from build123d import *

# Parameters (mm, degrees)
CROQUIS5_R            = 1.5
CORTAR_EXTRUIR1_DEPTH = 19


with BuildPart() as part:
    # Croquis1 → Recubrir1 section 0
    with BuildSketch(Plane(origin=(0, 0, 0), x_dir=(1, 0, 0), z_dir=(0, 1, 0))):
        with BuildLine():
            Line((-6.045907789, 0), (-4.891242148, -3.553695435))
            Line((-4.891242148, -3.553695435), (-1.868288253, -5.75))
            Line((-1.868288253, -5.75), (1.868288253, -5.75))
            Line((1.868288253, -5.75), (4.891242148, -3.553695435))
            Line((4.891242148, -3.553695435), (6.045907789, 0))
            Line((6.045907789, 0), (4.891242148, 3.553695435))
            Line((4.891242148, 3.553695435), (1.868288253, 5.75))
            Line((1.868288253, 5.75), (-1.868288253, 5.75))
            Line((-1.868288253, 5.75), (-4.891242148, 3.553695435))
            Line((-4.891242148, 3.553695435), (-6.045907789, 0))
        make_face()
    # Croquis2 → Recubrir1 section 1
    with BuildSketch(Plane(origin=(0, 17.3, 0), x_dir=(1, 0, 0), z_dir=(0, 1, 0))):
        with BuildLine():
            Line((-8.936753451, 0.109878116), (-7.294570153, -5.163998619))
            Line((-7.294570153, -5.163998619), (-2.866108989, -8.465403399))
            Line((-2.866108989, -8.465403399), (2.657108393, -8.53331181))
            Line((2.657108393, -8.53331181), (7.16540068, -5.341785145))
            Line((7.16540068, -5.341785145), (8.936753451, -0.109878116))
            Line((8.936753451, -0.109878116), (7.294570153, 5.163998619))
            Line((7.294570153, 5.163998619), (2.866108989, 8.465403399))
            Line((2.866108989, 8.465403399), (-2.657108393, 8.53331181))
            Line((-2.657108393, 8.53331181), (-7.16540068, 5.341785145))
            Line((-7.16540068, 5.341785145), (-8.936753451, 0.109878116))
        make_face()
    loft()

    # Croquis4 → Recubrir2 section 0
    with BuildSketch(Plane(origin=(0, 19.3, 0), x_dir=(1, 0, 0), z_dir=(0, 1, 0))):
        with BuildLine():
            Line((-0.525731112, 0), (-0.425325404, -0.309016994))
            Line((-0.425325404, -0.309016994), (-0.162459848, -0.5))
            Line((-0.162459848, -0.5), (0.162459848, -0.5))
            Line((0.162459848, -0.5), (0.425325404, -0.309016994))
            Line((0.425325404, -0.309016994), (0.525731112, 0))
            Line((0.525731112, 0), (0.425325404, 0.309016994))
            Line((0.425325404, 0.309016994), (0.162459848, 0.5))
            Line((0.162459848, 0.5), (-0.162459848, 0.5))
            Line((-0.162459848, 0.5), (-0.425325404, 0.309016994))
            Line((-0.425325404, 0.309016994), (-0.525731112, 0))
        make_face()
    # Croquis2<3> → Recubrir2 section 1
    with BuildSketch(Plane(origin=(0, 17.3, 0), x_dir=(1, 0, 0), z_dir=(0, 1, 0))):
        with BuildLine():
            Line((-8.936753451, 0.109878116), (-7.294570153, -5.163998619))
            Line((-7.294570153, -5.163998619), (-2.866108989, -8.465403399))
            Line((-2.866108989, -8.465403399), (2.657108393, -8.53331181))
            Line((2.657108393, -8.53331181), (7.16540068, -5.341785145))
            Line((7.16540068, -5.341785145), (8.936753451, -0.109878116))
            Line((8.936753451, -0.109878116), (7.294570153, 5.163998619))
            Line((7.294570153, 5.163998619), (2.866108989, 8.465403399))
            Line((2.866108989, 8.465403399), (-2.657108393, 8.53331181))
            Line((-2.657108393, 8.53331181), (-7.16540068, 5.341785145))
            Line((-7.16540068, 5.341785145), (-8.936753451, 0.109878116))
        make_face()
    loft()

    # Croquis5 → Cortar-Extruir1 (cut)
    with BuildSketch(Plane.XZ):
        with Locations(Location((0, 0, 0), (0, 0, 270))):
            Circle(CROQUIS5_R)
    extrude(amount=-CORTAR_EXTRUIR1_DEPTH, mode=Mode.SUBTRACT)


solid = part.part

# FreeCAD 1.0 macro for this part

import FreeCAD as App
import Part
import Sketcher
from FreeCAD import Vector
Q = App.Units.Quantity

doc = App.newDocument("Part")
body = doc.addObject("PartDesign::Body", "Body")

sketch1 = doc.addObject("Sketcher::SketchObject", "Sketch")
body.addObject(sketch1)
sketch1.AttachmentSupport = (doc.XZ_Plane, [""])
sketch1.MapMode = "FlatFace"
sketch1.addGeometry(Part.LineSegment(Vector(-6, 0, 0), Vector(-4.9, 3.6, 0)), False)
sketch1.addGeometry(Part.LineSegment(Vector(-4.9, 3.6, 0), Vector(-1.9, 5.8, 0)), False)
sketch1.addGeometry(Part.LineSegment(Vector(-1.9, 5.8, 0), Vector(1.9, 5.8, 0)), False)
sketch1.addGeometry(Part.LineSegment(Vector(1.9, 5.8, 0), Vector(4.9, 3.6, 0)), False)
sketch1.addGeometry(Part.LineSegment(Vector(4.9, 3.6, 0), Vector(6, 0, 0)), False)
sketch1.addGeometry(Part.LineSegment(Vector(6, 0, 0), Vector(4.9, -3.6, 0)), False)
sketch1.addGeometry(Part.LineSegment(Vector(4.9, -3.6, 0), Vector(1.9, -5.8, 0)), False)
sketch1.addGeometry(Part.LineSegment(Vector(1.9, -5.8, 0), Vector(-1.9, -5.8, 0)), False)
sketch1.addGeometry(Part.LineSegment(Vector(-1.9, -5.8, 0), Vector(-4.9, -3.6, 0)), False)
sketch1.addGeometry(Part.LineSegment(Vector(-4.9, -3.6, 0), Vector(-6, 0, 0)), False)
sketch1.addConstraint(Sketcher.Constraint("Coincident", 0, 2, 1, 1))
sketch1.addConstraint(Sketcher.Constraint("Coincident", 1, 2, 2, 1))
sketch1.addConstraint(Sketcher.Constraint("Coincident", 2, 2, 3, 1))
sketch1.addConstraint(Sketcher.Constraint("Coincident", 3, 2, 4, 1))
sketch1.addConstraint(Sketcher.Constraint("Coincident", 4, 2, 5, 1))
sketch1.addConstraint(Sketcher.Constraint("Coincident", 5, 2, 6, 1))
sketch1.addConstraint(Sketcher.Constraint("Coincident", 6, 2, 7, 1))
sketch1.addConstraint(Sketcher.Constraint("Coincident", 7, 2, 8, 1))
sketch1.addConstraint(Sketcher.Constraint("Coincident", 8, 2, 9, 1))
sketch1.addConstraint(Sketcher.Constraint("Coincident", 9, 2, 0, 1))
sketch1.addConstraint(Sketcher.Constraint("Horizontal", 2))
sketch1.addConstraint(Sketcher.Constraint("Horizontal", 7))
sketch1.addConstraint(Sketcher.Constraint("Symmetric", 0, 2, 5, 2, -1, 1))
sketch1.addConstraint(Sketcher.Constraint("Symmetric", 1, 2, 6, 2, -1, 1))
sketch1.addConstraint(Sketcher.Constraint("Symmetric", 3, 2, 8, 2, -1, 1))
sketch1.addConstraint(Sketcher.Constraint("Symmetric", 4, 2, 9, 2, -1, 1))
sketch1.addConstraint(Sketcher.Constraint("Symmetric", 0, 2, 3, 2, -2))
sketch1.addConstraint(Sketcher.Constraint("PointOnObject", 4, 2, -1))
sketch1.addConstraint(Sketcher.Constraint("Parallel", 3, 8))
sketch1.addConstraint(Sketcher.Constraint("Vertical", 2, 2, 6, 2))
sketch1.addConstraint(Sketcher.Constraint("Equal", 0, 1))
sketch1.addConstraint(Sketcher.Constraint("Angle", 0, Q("72 deg")))
sketch1.addConstraint(Sketcher.Constraint("Angle", 1, Q("36 deg")))
sketch1.addConstraint(Sketcher.Constraint("DistanceY", 6, 2, 2, 2, Q("11.5 mm")))
sketch1.addConstraint(Sketcher.Constraint("DistanceX", 2, 1, 2, 2, Q("3.736577 mm")))

sketch2 = doc.addObject("Sketcher::SketchObject", "Sketch001")
body.addObject(sketch2)
sketch2.AttachmentSupport = (doc.XZ_Plane, [""])
sketch2.MapMode = "FlatFace"
sketch2.AttachmentOffset = App.Placement(Vector(0, 0, -17.3), App.Rotation())
sketch2.addGeometry(Part.LineSegment(Vector(-9, 0, 0), Vector(-7, 5, 0)), False)
sketch2.addGeometry(Part.LineSegment(Vector(-7, 5, 0), Vector(-3, 8, 0)), False)
sketch2.addGeometry(Part.LineSegment(Vector(-3, 8, 0), Vector(3, 9, 0)), False)
sketch2.addGeometry(Part.LineSegment(Vector(3, 9, 0), Vector(7, 5, 0)), False)
sketch2.addGeometry(Part.LineSegment(Vector(7, 5, 0), Vector(9, 0, 0)), False)
sketch2.addGeometry(Part.LineSegment(Vector(9, 0, 0), Vector(7, -5, 0)), False)
sketch2.addGeometry(Part.LineSegment(Vector(7, -5, 0), Vector(3, -8, 0)), False)
sketch2.addGeometry(Part.LineSegment(Vector(3, -8, 0), Vector(-3, -9, 0)), False)
sketch2.addGeometry(Part.LineSegment(Vector(-3, -9, 0), Vector(-7, -5, 0)), False)
sketch2.addGeometry(Part.LineSegment(Vector(-7, -5, 0), Vector(-9, 0, 0)), False)
sketch2.addConstraint(Sketcher.Constraint("Coincident", 0, 2, 1, 1))
sketch2.addConstraint(Sketcher.Constraint("Coincident", 1, 2, 2, 1))
sketch2.addConstraint(Sketcher.Constraint("Coincident", 2, 2, 3, 1))
sketch2.addConstraint(Sketcher.Constraint("Coincident", 3, 2, 4, 1))
sketch2.addConstraint(Sketcher.Constraint("Coincident", 4, 2, 5, 1))
sketch2.addConstraint(Sketcher.Constraint("Coincident", 5, 2, 6, 1))
sketch2.addConstraint(Sketcher.Constraint("Coincident", 6, 2, 7, 1))
sketch2.addConstraint(Sketcher.Constraint("Coincident", 7, 2, 8, 1))
sketch2.addConstraint(Sketcher.Constraint("Coincident", 8, 2, 9, 1))
sketch2.addConstraint(Sketcher.Constraint("Coincident", 9, 2, 0, 1))
sketch2.addConstraint(Sketcher.Constraint("Symmetric", 0, 2, 5, 2, -1, 1))
sketch2.addConstraint(Sketcher.Constraint("Symmetric", 1, 2, 6, 2, -1, 1))
sketch2.addConstraint(Sketcher.Constraint("Symmetric", 2, 2, 7, 2, -1, 1))
sketch2.addConstraint(Sketcher.Constraint("Symmetric", 3, 2, 8, 2, -1, 1))
sketch2.addConstraint(Sketcher.Constraint("Symmetric", 4, 2, 9, 2, -1, 1))
sketch2.addConstraint(Sketcher.Constraint("Equal", 0, 1))
sketch2.addConstraint(Sketcher.Constraint("Equal", 1, 2))
sketch2.addConstraint(Sketcher.Constraint("Equal", 2, 3))
sketch2.addConstraint(Sketcher.Constraint("Equal", 3, 4))
sketch2.addConstraint(Sketcher.Constraint("DistanceY", -1, 1, 0, 2, Q("5.163999 mm")))
sketch2.addConstraint(Sketcher.Constraint("DistanceX", 2, 2, 6, 2, Q("0.209001 mm")))
sketch2.addConstraint(Sketcher.Constraint("DistanceX", -1, 1, 3, 2, Q("7.165401 mm")))
sketch2.addConstraint(Sketcher.Constraint("DistanceX", 0, 2, -1, 1, Q("7.29457 mm")))
sketch2.addConstraint(Sketcher.Constraint("DistanceX", 1, 2, -1, 1, Q("2.866109 mm")))
sketch2.addConstraint(Sketcher.Constraint("DistanceY", -1, 1, 2, 2, Q("8.533312 mm")))

additiveloft = doc.addObject("PartDesign::AdditiveLoft", "AdditiveLoft")
body.addObject(additiveloft)
additiveloft.Profile = sketch1
additiveloft.Sections = [sketch2]

sketch3 = doc.addObject("Sketcher::SketchObject", "Sketch002")
body.addObject(sketch3)
sketch3.AttachmentSupport = (doc.XZ_Plane, [""])
sketch3.MapMode = "FlatFace"
sketch3.AttachmentOffset = App.Placement(Vector(0, 0, -19.3), App.Rotation())
sketch3.addGeometry(Part.LineSegment(Vector(-0.53, 0, 0), Vector(-0.43, 0.31, 0)), False)
sketch3.addGeometry(Part.LineSegment(Vector(-0.43, 0.31, 0), Vector(-0.16, 0.5, 0)), False)
sketch3.addGeometry(Part.LineSegment(Vector(-0.16, 0.5, 0), Vector(0.16, 0.5, 0)), False)
sketch3.addGeometry(Part.LineSegment(Vector(0.16, 0.5, 0), Vector(0.43, 0.31, 0)), False)
sketch3.addGeometry(Part.LineSegment(Vector(0.43, 0.31, 0), Vector(0.53, 0, 0)), False)
sketch3.addGeometry(Part.LineSegment(Vector(0.53, 0, 0), Vector(0.43, -0.31, 0)), False)
sketch3.addGeometry(Part.LineSegment(Vector(0.43, -0.31, 0), Vector(0.16, -0.5, 0)), False)
sketch3.addGeometry(Part.LineSegment(Vector(0.16, -0.5, 0), Vector(-0.16, -0.5, 0)), False)
sketch3.addGeometry(Part.LineSegment(Vector(-0.16, -0.5, 0), Vector(-0.43, -0.31, 0)), False)
sketch3.addGeometry(Part.LineSegment(Vector(-0.43, -0.31, 0), Vector(-0.53, 0, 0)), False)
sketch3.addConstraint(Sketcher.Constraint("Coincident", 0, 2, 1, 1))
sketch3.addConstraint(Sketcher.Constraint("Coincident", 1, 2, 2, 1))
sketch3.addConstraint(Sketcher.Constraint("Coincident", 2, 2, 3, 1))
sketch3.addConstraint(Sketcher.Constraint("Coincident", 3, 2, 4, 1))
sketch3.addConstraint(Sketcher.Constraint("Coincident", 4, 2, 5, 1))
sketch3.addConstraint(Sketcher.Constraint("Coincident", 5, 2, 6, 1))
sketch3.addConstraint(Sketcher.Constraint("Coincident", 6, 2, 7, 1))
sketch3.addConstraint(Sketcher.Constraint("Coincident", 7, 2, 8, 1))
sketch3.addConstraint(Sketcher.Constraint("Coincident", 8, 2, 9, 1))
sketch3.addConstraint(Sketcher.Constraint("Coincident", 9, 2, 0, 1))
sketch3.addConstraint(Sketcher.Constraint("Horizontal", 2))
sketch3.addConstraint(Sketcher.Constraint("Horizontal", 7))
sketch3.addConstraint(Sketcher.Constraint("Symmetric", 0, 2, 5, 2, -1, 1))
sketch3.addConstraint(Sketcher.Constraint("Symmetric", 1, 2, 6, 2, -1, 1))
sketch3.addConstraint(Sketcher.Constraint("Symmetric", 3, 2, 8, 2, -1, 1))
sketch3.addConstraint(Sketcher.Constraint("Symmetric", 4, 2, 9, 2, -1, 1))
sketch3.addConstraint(Sketcher.Constraint("Symmetric", 0, 2, 3, 2, -2))
sketch3.addConstraint(Sketcher.Constraint("PointOnObject", 4, 2, -1))
sketch3.addConstraint(Sketcher.Constraint("Parallel", 3, 8))
sketch3.addConstraint(Sketcher.Constraint("Vertical", 2, 2, 6, 2))
sketch3.addConstraint(Sketcher.Constraint("Equal", 0, 1))
sketch3.addConstraint(Sketcher.Constraint("Angle", 0, Q("72 deg")))
sketch3.addConstraint(Sketcher.Constraint("Angle", 1, Q("36 deg")))
sketch3.addConstraint(Sketcher.Constraint("DistanceY", 6, 2, 2, 2, Q("1 mm")))
sketch3.addConstraint(Sketcher.Constraint("DistanceX", 2, 1, 2, 2, Q("0.32492 mm")))

sketch4 = doc.addObject("Sketcher::SketchObject", "Sketch003")
body.addObject(sketch4)
sketch4.AttachmentSupport = (doc.XZ_Plane, [""])
sketch4.MapMode = "FlatFace"
sketch4.AttachmentOffset = App.Placement(Vector(0, 0, -17.3), App.Rotation())
sketch4.addGeometry(Part.LineSegment(Vector(-9, 0, 0), Vector(-7, 5, 0)), False)
sketch4.addGeometry(Part.LineSegment(Vector(-7, 5, 0), Vector(-3, 8, 0)), False)
sketch4.addGeometry(Part.LineSegment(Vector(-3, 8, 0), Vector(3, 9, 0)), False)
sketch4.addGeometry(Part.LineSegment(Vector(3, 9, 0), Vector(7, 5, 0)), False)
sketch4.addGeometry(Part.LineSegment(Vector(7, 5, 0), Vector(9, 0, 0)), False)
sketch4.addGeometry(Part.LineSegment(Vector(9, 0, 0), Vector(7, -5, 0)), False)
sketch4.addGeometry(Part.LineSegment(Vector(7, -5, 0), Vector(3, -8, 0)), False)
sketch4.addGeometry(Part.LineSegment(Vector(3, -8, 0), Vector(-3, -9, 0)), False)
sketch4.addGeometry(Part.LineSegment(Vector(-3, -9, 0), Vector(-7, -5, 0)), False)
sketch4.addGeometry(Part.LineSegment(Vector(-7, -5, 0), Vector(-9, 0, 0)), False)
sketch4.addConstraint(Sketcher.Constraint("Coincident", 0, 2, 1, 1))
sketch4.addConstraint(Sketcher.Constraint("Coincident", 1, 2, 2, 1))
sketch4.addConstraint(Sketcher.Constraint("Coincident", 2, 2, 3, 1))
sketch4.addConstraint(Sketcher.Constraint("Coincident", 3, 2, 4, 1))
sketch4.addConstraint(Sketcher.Constraint("Coincident", 4, 2, 5, 1))
sketch4.addConstraint(Sketcher.Constraint("Coincident", 5, 2, 6, 1))
sketch4.addConstraint(Sketcher.Constraint("Coincident", 6, 2, 7, 1))
sketch4.addConstraint(Sketcher.Constraint("Coincident", 7, 2, 8, 1))
sketch4.addConstraint(Sketcher.Constraint("Coincident", 8, 2, 9, 1))
sketch4.addConstraint(Sketcher.Constraint("Coincident", 9, 2, 0, 1))
sketch4.addConstraint(Sketcher.Constraint("Symmetric", 0, 2, 5, 2, -1, 1))
sketch4.addConstraint(Sketcher.Constraint("Symmetric", 1, 2, 6, 2, -1, 1))
sketch4.addConstraint(Sketcher.Constraint("Symmetric", 2, 2, 7, 2, -1, 1))
sketch4.addConstraint(Sketcher.Constraint("Symmetric", 3, 2, 8, 2, -1, 1))
sketch4.addConstraint(Sketcher.Constraint("Symmetric", 4, 2, 9, 2, -1, 1))
sketch4.addConstraint(Sketcher.Constraint("Equal", 0, 1))
sketch4.addConstraint(Sketcher.Constraint("Equal", 1, 2))
sketch4.addConstraint(Sketcher.Constraint("Equal", 2, 3))
sketch4.addConstraint(Sketcher.Constraint("Equal", 3, 4))
sketch4.addConstraint(Sketcher.Constraint("DistanceY", -1, 1, 0, 2, Q("5.163999 mm")))
sketch4.addConstraint(Sketcher.Constraint("DistanceX", 2, 2, 6, 2, Q("0.209001 mm")))
sketch4.addConstraint(Sketcher.Constraint("DistanceX", -1, 1, 3, 2, Q("7.165401 mm")))
sketch4.addConstraint(Sketcher.Constraint("DistanceX", 0, 2, -1, 1, Q("7.29457 mm")))
sketch4.addConstraint(Sketcher.Constraint("DistanceX", 1, 2, -1, 1, Q("2.866109 mm")))
sketch4.addConstraint(Sketcher.Constraint("DistanceY", -1, 1, 2, 2, Q("8.533312 mm")))

additiveloft2 = doc.addObject("PartDesign::AdditiveLoft", "AdditiveLoft001")
body.addObject(additiveloft2)
additiveloft2.Profile = sketch3
additiveloft2.Sections = [sketch4]

sketch5 = doc.addObject("Sketcher::SketchObject", "Sketch004")
body.addObject(sketch5)
sketch5.AttachmentSupport = (doc.XZ_Plane, [""])
sketch5.MapMode = "FlatFace"
sketch5.addGeometry(Part.Circle(Vector(0, 0, 0), Vector(0, 0, 1), 1.5), False)
sketch5.addConstraint(Sketcher.Constraint("Coincident", 0, 3, -1, 1))
sketch5.addConstraint(Sketcher.Constraint("Diameter", 0, Q("3 mm")))
pocket1 = doc.addObject("PartDesign::Pocket", "Pocket")
body.addObject(pocket1)
pocket1.Profile = sketch5
pocket1.Length = 19

doc.recompute()
